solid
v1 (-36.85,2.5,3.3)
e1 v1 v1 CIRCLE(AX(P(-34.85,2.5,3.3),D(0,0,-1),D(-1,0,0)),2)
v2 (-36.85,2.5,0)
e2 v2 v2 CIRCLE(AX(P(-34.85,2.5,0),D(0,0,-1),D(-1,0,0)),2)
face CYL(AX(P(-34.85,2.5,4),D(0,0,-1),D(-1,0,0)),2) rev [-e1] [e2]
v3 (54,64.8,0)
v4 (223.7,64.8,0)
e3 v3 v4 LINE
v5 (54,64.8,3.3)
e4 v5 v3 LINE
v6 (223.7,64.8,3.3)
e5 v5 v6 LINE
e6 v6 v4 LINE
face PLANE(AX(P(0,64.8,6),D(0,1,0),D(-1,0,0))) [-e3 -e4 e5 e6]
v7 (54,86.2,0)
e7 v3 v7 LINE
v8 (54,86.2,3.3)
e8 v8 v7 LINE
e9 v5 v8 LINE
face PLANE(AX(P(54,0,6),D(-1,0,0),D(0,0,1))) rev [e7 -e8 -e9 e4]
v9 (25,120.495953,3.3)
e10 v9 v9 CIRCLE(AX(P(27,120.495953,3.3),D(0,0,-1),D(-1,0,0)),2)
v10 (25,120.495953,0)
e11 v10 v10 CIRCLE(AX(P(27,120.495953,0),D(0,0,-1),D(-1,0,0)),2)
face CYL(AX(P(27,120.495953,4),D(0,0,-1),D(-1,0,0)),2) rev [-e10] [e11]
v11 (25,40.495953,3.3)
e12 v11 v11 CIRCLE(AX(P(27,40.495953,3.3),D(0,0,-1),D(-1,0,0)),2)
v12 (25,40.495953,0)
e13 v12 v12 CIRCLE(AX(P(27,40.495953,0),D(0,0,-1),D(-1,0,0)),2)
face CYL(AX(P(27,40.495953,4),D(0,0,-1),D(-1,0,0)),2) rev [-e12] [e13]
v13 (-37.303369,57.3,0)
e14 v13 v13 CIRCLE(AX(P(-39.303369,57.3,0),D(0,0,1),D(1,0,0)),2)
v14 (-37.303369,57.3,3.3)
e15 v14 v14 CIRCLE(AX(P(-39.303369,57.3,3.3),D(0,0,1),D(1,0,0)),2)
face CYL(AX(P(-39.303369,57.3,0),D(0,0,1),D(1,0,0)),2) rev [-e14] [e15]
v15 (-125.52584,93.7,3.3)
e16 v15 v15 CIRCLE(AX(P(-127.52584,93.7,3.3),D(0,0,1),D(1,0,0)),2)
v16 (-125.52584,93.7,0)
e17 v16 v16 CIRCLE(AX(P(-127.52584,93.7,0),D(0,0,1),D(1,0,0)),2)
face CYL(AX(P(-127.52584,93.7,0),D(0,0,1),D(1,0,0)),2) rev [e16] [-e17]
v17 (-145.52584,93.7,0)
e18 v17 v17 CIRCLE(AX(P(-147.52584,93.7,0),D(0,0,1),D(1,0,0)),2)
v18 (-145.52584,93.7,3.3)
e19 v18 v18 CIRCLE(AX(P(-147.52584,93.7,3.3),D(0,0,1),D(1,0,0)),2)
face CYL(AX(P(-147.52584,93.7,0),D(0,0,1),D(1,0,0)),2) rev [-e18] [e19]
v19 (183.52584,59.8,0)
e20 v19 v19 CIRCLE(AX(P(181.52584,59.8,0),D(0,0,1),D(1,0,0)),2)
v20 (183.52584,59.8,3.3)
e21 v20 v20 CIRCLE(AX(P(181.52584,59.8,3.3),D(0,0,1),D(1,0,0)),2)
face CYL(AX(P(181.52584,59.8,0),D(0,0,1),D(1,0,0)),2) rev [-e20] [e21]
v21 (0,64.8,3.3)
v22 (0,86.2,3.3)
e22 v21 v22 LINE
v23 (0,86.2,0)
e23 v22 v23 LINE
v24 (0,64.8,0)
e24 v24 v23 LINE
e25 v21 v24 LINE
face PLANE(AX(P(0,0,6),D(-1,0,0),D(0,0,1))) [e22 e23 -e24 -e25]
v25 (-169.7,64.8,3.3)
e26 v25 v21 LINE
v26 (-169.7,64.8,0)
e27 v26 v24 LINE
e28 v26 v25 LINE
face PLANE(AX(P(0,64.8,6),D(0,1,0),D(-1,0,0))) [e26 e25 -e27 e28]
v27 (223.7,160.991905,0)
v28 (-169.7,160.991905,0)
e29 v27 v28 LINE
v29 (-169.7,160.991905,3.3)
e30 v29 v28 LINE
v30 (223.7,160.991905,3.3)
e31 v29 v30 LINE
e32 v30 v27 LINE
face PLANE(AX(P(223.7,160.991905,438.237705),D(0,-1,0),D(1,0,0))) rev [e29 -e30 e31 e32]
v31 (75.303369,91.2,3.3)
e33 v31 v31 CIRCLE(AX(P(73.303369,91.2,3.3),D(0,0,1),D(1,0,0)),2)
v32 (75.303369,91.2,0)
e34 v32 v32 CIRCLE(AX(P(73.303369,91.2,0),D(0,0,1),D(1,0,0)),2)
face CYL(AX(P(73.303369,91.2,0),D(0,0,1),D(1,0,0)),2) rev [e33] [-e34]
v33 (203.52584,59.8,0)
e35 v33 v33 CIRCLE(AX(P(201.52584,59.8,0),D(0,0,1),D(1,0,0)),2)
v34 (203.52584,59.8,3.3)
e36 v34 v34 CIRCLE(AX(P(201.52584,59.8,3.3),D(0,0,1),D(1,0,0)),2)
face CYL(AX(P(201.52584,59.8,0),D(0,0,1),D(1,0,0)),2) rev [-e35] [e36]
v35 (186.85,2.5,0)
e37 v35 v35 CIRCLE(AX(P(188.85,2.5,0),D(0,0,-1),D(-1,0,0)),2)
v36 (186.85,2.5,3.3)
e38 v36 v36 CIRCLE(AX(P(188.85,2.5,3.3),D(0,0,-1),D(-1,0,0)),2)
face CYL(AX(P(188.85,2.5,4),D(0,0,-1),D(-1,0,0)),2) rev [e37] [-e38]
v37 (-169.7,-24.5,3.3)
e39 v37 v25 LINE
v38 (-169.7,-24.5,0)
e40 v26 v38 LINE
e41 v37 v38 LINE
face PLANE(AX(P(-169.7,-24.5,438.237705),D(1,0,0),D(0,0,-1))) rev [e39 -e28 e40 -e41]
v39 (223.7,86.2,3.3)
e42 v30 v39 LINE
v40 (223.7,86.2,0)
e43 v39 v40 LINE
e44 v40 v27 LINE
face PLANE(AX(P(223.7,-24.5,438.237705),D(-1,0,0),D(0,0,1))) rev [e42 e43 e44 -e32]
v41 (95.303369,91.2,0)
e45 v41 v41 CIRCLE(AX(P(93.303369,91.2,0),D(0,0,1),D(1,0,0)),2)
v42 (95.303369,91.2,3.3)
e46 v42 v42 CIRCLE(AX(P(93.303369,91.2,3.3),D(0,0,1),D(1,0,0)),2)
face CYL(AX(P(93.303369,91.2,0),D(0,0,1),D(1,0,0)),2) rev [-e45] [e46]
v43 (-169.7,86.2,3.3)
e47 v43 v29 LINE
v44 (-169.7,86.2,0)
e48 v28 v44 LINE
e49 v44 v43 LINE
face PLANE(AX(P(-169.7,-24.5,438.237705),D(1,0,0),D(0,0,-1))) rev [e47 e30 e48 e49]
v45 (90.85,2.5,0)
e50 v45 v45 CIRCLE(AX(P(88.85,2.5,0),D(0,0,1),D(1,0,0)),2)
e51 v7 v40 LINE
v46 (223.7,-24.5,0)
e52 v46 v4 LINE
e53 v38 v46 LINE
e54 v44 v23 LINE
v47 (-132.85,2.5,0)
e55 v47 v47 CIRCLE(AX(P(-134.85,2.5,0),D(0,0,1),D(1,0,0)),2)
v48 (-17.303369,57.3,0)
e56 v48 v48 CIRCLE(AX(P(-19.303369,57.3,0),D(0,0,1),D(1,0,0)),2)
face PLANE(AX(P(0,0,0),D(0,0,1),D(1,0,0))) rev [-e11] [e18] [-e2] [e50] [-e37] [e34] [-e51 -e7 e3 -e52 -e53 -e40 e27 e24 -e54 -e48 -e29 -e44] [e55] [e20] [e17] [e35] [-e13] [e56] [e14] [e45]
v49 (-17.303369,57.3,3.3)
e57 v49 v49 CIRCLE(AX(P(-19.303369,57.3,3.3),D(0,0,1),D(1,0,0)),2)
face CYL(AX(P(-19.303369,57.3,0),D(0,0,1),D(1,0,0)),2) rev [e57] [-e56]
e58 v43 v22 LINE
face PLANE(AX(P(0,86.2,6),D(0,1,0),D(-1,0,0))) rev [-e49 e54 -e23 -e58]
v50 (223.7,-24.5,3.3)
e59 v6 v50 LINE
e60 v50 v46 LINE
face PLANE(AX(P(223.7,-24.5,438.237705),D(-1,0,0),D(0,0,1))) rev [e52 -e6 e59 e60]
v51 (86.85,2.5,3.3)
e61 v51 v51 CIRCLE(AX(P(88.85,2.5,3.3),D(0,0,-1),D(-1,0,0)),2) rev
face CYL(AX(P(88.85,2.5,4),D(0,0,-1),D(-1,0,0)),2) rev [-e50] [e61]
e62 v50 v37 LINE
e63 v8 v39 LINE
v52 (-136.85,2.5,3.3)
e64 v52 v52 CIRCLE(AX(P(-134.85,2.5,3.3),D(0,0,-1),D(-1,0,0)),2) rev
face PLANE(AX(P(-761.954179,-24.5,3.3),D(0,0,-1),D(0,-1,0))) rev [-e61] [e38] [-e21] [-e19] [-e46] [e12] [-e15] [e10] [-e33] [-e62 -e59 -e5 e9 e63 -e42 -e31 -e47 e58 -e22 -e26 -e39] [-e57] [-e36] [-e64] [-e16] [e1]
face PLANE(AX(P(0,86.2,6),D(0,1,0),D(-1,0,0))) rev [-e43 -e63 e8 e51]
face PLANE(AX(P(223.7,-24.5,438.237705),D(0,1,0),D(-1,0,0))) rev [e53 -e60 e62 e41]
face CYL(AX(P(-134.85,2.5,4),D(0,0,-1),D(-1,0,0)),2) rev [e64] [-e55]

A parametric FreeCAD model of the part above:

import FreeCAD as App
import Part
import Sketcher
Q = App.Units.Quantity

doc = App.newDocument("Part")
body = doc.addObject("PartDesign::Body", "Body")

# Sketch on XY plane
sketch1 = body.newObject("Sketcher::SketchObject", "Sketch")
sketch1.AttachmentSupport = (doc.getObject("XY_Plane"), [""])
sketch1.MapMode = "FlatFace"
sketch1.addGeometry([
    Part.LineSegment(App.Vector(-170, 161, 0), App.Vector(-170, -24, 0)),
    Part.LineSegment(App.Vector(-170, -24, 0), App.Vector(224, -24, 0)),
    Part.LineSegment(App.Vector(224, -24, 0), App.Vector(224, 161, 0)),
    Part.LineSegment(App.Vector(224, 161, 0), App.Vector(-170, 161, 0)),
], False)
sketch1.addConstraint([
    Sketcher.Constraint("Coincident", 0, 2, 1, 1),
    Sketcher.Constraint("Coincident", 1, 2, 2, 1),
    Sketcher.Constraint("Coincident", 2, 2, 3, 1),
    Sketcher.Constraint("Coincident", 3, 2, 0, 1),
    Sketcher.Constraint("Vertical", 0),
    Sketcher.Constraint("Horizontal", 1),
    Sketcher.Constraint("Vertical", 2),
    Sketcher.Constraint("Horizontal", 3),
    Sketcher.Constraint("DistanceX", 1, 1, 1, 2, Q("393.4 mm")),
    Sketcher.Constraint("DistanceX", 0, 2, -1, 1, Q("169.7 mm")),
    Sketcher.Constraint("DistanceY", 0, 2, -1, 1, Q("24.5 mm")),
    Sketcher.Constraint("DistanceY", 0, 2, 0, 1, Q("185.491905 mm")),
])
pad1 = body.newObject("PartDesign::Pad", "Pad")
pad1.Profile = sketch1
pad1.Length = 3.3

# Sketch on XY plane
sketch2 = body.newObject("Sketcher::SketchObject", "Sketch001")
sketch2.AttachmentSupport = (doc.getObject("XY_Plane"), [""])
sketch2.MapMode = "FlatFace"
sketch2.addGeometry([
    Part.Circle(App.Vector(27, 40.5, 0), App.Vector(0, 0, 1), 2),  # 0
    Part.Circle(App.Vector(27, 120.5, 0), App.Vector(0, 0, 1), 2),  # 1
    Part.Circle(App.Vector(188.8, 2.5, 0), App.Vector(0, 0, 1), 2),  # 2
    Part.Circle(App.Vector(88.8, 2.5, 0), App.Vector(0, 0, 1), 2),  # 3
    Part.Circle(App.Vector(-34.9, 2.5, 0), App.Vector(0, 0, 1), 2),  # 4
    Part.Circle(App.Vector(-134.8, 2.5, 0), App.Vector(0, 0, 1), 2),  # 5
], False)
sketch2.addConstraint([
    Sketcher.Constraint("Equal", 0, 1),
    Sketcher.Constraint("Equal", 1, 2),
    Sketcher.Constraint("Equal", 2, 3),
    Sketcher.Constraint("Equal", 3, 4),
    Sketcher.Constraint("Equal", 4, 5),
    Sketcher.Constraint("Horizontal", 2, 3, 3, 3),
    Sketcher.Constraint("Horizontal", 3, 3, 4, 3),
    Sketcher.Constraint("Horizontal", 4, 3, 5, 3),
    Sketcher.Constraint("Vertical", 0, 3, 1, 3),
    Sketcher.Constraint("Diameter", 0, Q("4 mm")),
    Sketcher.Constraint("DistanceX", -1, 1, 0, 3, Q("27 mm")),
    Sketcher.Constraint("DistanceY", 0, 3, 1, 3, Q("80 mm")),
    Sketcher.Constraint("DistanceX", 3, 3, 2, 3, Q("100 mm")),
    Sketcher.Constraint("DistanceX", 5, 3, 4, 3, Q("100 mm")),
    Sketcher.Constraint("DistanceY", -1, 1, 2, 3, Q("2.5 mm")),
    Sketcher.Constraint("DistanceX", 4, 3, 3, 3, Q("123.7 mm")),
    Sketcher.Constraint("DistanceX", -1, 1, 2, 3, Q("188.85 mm")),
    Sketcher.Constraint("DistanceY", -1, 1, 0, 3, Q("40.495953 mm")),
])
pocket1 = body.newObject("PartDesign::Pocket", "Pocket")
pocket1.Profile = sketch2
pocket1.Length = 4
pocket1.Reversed = True

# Sketch on XY plane
sketch3 = body.newObject("Sketcher::SketchObject", "Sketch002")
sketch3.AttachmentSupport = (doc.getObject("XY_Plane"), [""])
sketch3.MapMode = "FlatFace"
sketch3.addGeometry([
    Part.LineSegment(App.Vector(0, 86, 0), App.Vector(0, 65, 0)),  # 0
    Part.LineSegment(App.Vector(0, 65, 0), App.Vector(-170, 65, 0)),  # 1
    Part.LineSegment(App.Vector(-170, 65, 0), App.Vector(-170, 86, 0)),  # 2
    Part.LineSegment(App.Vector(-170, 86, 0), App.Vector(0, 86, 0)),  # 3
    Part.LineSegment(App.Vector(224, 86, 0), App.Vector(224, 65, 0)),  # 4
    Part.LineSegment(App.Vector(224, 65, 0), App.Vector(54, 65, 0)),  # 5
    Part.LineSegment(App.Vector(54, 65, 0), App.Vector(54, 86, 0)),  # 6
    Part.LineSegment(App.Vector(54, 86, 0), App.Vector(224, 86, 0)),  # 7
], False)
sketch3.addConstraint([
    Sketcher.Constraint("Coincident", 0, 2, 1, 1),
    Sketcher.Constraint("Coincident", 1, 2, 2, 1),
    Sketcher.Constraint("Coincident", 2, 2, 3, 1),
    Sketcher.Constraint("Coincident", 3, 2, 0, 1),
    Sketcher.Constraint("Coincident", 4, 2, 5, 1),
    Sketcher.Constraint("Coincident", 5, 2, 6, 1),
    Sketcher.Constraint("Coincident", 6, 2, 7, 1),
    Sketcher.Constraint("Coincident", 7, 2, 4, 1),
    Sketcher.Constraint("Vertical", 0),
    Sketcher.Constraint("Horizontal", 1),
    Sketcher.Constraint("Vertical", 2),
    Sketcher.Constraint("Horizontal", 3),
    Sketcher.Constraint("Vertical", 4),
    Sketcher.Constraint("Horizontal", 5),
    Sketcher.Constraint("Vertical", 6),
    Sketcher.Constraint("Horizontal", 7),
    Sketcher.Constraint("PointOnObject", 0, 2, -2),
    Sketcher.Constraint("Horizontal", 1, 2, 4, 2),
    Sketcher.Constraint("Horizontal", 3, 2, 6, 2),
    Sketcher.Constraint("Equal", 3, 5),
    Sketcher.Constraint("DistanceX", 1, 2, 1, 1, Q("169.7 mm")),
    Sketcher.Constraint("DistanceY", 0, 2, 0, 1, Q("21.4 mm")),
    Sketcher.Constraint("DistanceX", -1, 1, 5, 2, Q("54 mm")),
    Sketcher.Constraint("DistanceY", -1, 1, 0, 2, Q("64.8 mm")),
])
pocket2 = body.newObject("PartDesign::Pocket", "Pocket001")
pocket2.Profile = sketch3
pocket2.Length = 6
pocket2.Reversed = True

# Sketch on XY plane
sketch4 = body.newObject("Sketcher::SketchObject", "Sketch003")
sketch4.AttachmentSupport = (doc.getObject("XY_Plane"), [""])
sketch4.MapMode = "FlatFace"
sketch4.AttachmentOffset = App.Placement(App.Vector(0, 0, 3.3), App.Rotation())
sketch4.addGeometry([
    Part.Circle(App.Vector(93.3, 91.2, 0), App.Vector(0, 0, 1), 2),  # 0
    Part.Circle(App.Vector(73.3, 91.2, 0), App.Vector(0, 0, 1), 2),  # 1
    Part.Circle(App.Vector(181.5, 59.8, 0), App.Vector(0, 0, 1), 2),  # 2
    Part.Circle(App.Vector(201.5, 59.8, 0), App.Vector(0, 0, 1), 2),  # 3
    Part.Circle(App.Vector(-127.5, 93.7, 0), App.Vector(0, 0, 1), 2),  # 4
    Part.Circle(App.Vector(-147.5, 93.7, 0), App.Vector(0, 0, 1), 2),  # 5
    Part.Circle(App.Vector(-19.3, 57.3, 0), App.Vector(0, 0, 1), 2),  # 6
    Part.Circle(App.Vector(-39.3, 57.3, 0), App.Vector(0, 0, 1), 2),  # 7
], False)
sketch4.addConstraint([
    Sketcher.Constraint("Equal", 0, 1),
    Sketcher.Constraint("Equal", 1, 2),
    Sketcher.Constraint("Equal", 2, 3),
    Sketcher.Constraint("Equal", 3, 4),
    Sketcher.Constraint("Equal", 4, 5),
    Sketcher.Constraint("Equal", 5, 6),
    Sketcher.Constraint("Equal", 6, 7),
    Sketcher.Constraint("Horizontal", 0, 3, 1, 3),
    Sketcher.Constraint("Horizontal", 2, 3, 3, 3),
    Sketcher.Constraint("Horizontal", 4, 3, 5, 3),
    Sketcher.Constraint("Horizontal", 6, 3, 7, 3),
    Sketcher.Constraint("Diameter", 0, Q("4 mm")),
    Sketcher.Constraint("DistanceX", 1, 3, 0, 3, Q("20 mm")),
    Sketcher.Constraint("DistanceX", 2, 3, 3, 3, Q("20 mm")),
    Sketcher.Constraint("DistanceX", 5, 3, 4, 3, Q("20 mm")),
    Sketcher.Constraint("DistanceX", 7, 3, 6, 3, Q("20 mm")),
    Sketcher.Constraint("DistanceY", -1, 1, 0, 3, Q("91.2 mm")),
    Sketcher.Constraint("DistanceY", -1, 1, 2, 3, Q("59.8 mm")),
    Sketcher.Constraint("DistanceY", -1, 1, 4, 3, Q("93.7 mm")),
    Sketcher.Constraint("DistanceY", -1, 1, 6, 3, Q("57.3 mm")),
    Sketcher.Constraint("DistanceX", -1, 1, 0, 3, Q("93.303369 mm")),
    Sketcher.Constraint("DistanceX", -1, 1, 2, 3, Q("181.52584 mm")),
    Sketcher.Constraint("DistanceX", 4, 3, -1, 1, Q("127.52584 mm")),
    Sketcher.Constraint("DistanceX", 6, 3, -1, 1, Q("19.303369 mm")),
])
pocket3 = body.newObject("PartDesign::Pocket", "Pocket002")
pocket3.Profile = sketch4
pocket3.Type = "ThroughAll"

doc.recompute()
